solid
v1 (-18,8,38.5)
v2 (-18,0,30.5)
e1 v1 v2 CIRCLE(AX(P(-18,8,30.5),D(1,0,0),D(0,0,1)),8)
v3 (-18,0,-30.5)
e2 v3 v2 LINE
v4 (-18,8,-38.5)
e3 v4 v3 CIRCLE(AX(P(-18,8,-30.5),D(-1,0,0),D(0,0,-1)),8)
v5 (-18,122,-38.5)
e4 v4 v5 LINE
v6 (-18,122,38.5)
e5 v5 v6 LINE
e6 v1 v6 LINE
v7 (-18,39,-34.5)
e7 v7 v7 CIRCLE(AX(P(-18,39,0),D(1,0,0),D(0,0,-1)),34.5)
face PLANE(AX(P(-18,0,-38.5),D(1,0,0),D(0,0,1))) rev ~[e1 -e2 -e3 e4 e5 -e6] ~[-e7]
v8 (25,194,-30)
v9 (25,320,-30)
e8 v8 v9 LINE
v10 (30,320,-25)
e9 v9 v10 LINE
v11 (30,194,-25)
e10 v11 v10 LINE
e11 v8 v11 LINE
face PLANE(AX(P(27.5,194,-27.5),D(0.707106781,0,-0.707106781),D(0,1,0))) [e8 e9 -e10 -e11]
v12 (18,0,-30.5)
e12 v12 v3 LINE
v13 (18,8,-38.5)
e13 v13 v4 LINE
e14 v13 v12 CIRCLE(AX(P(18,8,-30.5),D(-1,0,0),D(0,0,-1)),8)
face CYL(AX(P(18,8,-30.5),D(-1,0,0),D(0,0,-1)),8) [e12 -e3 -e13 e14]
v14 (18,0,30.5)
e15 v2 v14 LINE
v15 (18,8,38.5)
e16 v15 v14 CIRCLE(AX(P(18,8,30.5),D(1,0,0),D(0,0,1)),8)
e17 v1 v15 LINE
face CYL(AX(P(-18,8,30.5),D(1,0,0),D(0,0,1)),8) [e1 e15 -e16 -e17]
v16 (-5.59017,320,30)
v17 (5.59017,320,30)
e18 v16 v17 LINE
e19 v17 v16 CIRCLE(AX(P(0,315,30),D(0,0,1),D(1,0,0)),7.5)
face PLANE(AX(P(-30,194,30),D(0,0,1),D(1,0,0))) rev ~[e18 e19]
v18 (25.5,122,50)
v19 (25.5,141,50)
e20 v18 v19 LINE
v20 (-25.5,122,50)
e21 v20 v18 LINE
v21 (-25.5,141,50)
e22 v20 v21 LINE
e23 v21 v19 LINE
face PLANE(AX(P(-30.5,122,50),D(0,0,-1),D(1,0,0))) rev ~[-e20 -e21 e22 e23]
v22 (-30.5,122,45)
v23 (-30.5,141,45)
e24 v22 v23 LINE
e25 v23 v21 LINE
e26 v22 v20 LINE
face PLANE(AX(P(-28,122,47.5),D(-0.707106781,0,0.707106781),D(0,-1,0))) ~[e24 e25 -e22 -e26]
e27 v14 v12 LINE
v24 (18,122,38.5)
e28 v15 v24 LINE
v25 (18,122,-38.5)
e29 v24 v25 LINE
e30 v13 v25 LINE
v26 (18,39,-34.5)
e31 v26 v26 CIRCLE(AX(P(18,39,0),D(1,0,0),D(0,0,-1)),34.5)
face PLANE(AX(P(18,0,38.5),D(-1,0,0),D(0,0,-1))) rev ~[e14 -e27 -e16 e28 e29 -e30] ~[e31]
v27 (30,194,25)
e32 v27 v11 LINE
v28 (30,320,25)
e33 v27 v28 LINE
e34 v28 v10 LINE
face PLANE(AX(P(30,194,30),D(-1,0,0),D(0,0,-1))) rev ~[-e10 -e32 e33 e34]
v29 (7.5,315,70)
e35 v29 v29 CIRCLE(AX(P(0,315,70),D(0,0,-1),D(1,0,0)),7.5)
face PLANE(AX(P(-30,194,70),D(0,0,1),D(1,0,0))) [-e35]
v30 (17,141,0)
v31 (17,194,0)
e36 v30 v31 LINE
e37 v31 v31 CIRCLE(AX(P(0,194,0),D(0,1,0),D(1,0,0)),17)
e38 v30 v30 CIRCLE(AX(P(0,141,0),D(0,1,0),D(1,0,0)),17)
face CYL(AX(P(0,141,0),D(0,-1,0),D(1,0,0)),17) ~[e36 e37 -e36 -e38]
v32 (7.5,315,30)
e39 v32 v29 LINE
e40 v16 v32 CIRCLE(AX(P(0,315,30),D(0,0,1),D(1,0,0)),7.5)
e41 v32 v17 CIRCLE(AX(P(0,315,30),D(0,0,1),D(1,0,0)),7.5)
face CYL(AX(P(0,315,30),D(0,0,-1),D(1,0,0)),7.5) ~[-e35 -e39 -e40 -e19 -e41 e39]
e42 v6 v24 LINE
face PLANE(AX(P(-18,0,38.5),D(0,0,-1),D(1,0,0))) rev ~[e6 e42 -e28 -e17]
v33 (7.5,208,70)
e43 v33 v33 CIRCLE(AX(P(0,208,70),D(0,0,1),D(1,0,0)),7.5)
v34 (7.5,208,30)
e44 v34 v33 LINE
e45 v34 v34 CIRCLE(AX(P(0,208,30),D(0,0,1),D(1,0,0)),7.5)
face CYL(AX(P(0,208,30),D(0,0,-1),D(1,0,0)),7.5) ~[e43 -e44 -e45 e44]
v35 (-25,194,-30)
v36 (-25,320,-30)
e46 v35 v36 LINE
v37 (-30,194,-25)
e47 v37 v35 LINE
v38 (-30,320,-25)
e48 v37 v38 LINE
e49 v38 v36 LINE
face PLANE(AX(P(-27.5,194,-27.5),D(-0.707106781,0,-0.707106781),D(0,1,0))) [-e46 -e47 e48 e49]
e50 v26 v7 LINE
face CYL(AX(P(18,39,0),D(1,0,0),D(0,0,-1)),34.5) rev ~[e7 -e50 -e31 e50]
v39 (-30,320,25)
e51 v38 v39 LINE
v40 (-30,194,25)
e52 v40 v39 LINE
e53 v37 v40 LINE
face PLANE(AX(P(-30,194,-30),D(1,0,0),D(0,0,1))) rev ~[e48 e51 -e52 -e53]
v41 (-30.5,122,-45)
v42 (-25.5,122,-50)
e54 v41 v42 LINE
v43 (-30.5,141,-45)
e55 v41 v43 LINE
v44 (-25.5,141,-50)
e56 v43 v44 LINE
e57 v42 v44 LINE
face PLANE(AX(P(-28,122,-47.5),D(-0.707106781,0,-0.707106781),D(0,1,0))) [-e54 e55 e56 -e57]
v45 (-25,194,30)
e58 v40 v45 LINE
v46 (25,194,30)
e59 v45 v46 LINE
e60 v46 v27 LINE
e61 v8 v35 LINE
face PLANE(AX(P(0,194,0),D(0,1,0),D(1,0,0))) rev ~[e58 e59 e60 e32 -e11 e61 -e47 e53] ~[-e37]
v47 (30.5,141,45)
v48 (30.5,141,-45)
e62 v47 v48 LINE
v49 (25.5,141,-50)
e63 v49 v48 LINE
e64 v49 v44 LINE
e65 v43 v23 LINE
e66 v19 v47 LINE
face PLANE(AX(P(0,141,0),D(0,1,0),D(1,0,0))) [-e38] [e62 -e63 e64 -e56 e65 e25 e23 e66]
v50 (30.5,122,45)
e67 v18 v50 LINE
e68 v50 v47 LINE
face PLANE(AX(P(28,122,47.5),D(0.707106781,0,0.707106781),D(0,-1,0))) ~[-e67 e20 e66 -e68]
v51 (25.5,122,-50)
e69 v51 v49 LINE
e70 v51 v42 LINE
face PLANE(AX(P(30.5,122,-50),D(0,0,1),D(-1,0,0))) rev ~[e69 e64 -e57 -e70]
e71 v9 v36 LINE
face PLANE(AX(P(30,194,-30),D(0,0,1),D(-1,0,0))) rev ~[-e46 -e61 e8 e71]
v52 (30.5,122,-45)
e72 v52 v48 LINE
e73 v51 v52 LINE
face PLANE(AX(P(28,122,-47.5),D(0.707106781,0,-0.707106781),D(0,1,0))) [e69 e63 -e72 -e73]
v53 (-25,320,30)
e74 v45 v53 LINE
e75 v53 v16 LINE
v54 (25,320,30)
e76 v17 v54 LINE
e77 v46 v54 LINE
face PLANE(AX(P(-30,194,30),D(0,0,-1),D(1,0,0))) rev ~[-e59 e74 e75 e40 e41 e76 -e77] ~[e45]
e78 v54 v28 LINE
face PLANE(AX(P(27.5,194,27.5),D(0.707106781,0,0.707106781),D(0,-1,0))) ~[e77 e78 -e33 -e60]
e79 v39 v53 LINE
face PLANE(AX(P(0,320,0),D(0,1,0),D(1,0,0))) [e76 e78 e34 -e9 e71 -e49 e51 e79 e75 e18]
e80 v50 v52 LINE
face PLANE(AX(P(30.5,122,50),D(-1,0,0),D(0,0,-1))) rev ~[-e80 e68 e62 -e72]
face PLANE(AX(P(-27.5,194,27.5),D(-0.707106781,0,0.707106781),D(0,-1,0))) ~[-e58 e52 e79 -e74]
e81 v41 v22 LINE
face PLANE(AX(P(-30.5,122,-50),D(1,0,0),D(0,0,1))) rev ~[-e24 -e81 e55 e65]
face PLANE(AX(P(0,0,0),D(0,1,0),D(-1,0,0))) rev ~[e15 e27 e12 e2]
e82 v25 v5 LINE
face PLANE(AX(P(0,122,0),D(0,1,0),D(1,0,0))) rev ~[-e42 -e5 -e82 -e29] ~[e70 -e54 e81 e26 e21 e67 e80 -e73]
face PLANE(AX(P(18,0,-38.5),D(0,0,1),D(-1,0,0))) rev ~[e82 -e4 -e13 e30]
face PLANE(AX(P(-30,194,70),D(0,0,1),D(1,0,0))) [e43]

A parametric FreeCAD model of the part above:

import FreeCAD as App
import Part
import Sketcher
Q = App.Units.Quantity


def edges_at(feature, points):
    """Names of the edges that pass closest to the given points."""
    edges = feature.Shape.Edges
    near = lambda p: min(range(len(edges)), key=lambda i: edges[i].distToShape(Part.Vertex(*p))[0])
    return sorted({f"Edge{near(p) + 1}" for p in points})


def add_polygon(sketch, points):
    """Adds a closed chain of lines whose ends are joined by coincident constraints."""
    first, n = sketch.GeometryCount, len(points)
    for a, b in zip(points, points[1:] + points[:1]):
        sketch.addGeometry(Part.LineSegment(App.Vector(*a, 0), App.Vector(*b, 0)), False)
    for i in range(n):
        sketch.addConstraint(Sketcher.Constraint("Coincident", first + i, 2, first + (i + 1) % n, 1))

doc = App.newDocument("Part")
body = doc.addObject("PartDesign::Body", "Body")

# Sketch on XZ plane
sketch1 = body.newObject("Sketcher::SketchObject", "Sketch")
sketch1.AttachmentSupport = (doc.getObject("XZ_Plane"), [""])
sketch1.MapMode = "FlatFace"
add_polygon(sketch1, [(-18, -38), (-18, 38), (18, 38), (18, -38)])  # lines 0-3
sketch1.addConstraint(Sketcher.Constraint("Vertical", 0))
sketch1.addConstraint(Sketcher.Constraint("Horizontal", 1))
sketch1.addConstraint(Sketcher.Constraint("Vertical", 2))
sketch1.addConstraint(Sketcher.Constraint("Horizontal", 3))
sketch1.addConstraint(Sketcher.Constraint("Symmetric", 0, 2, 2, 2, -1, 1))
sketch1.addConstraint(Sketcher.Constraint("DistanceX", 1, 1, 1, 2, Q("36 mm")))
sketch1.addConstraint(Sketcher.Constraint("DistanceY", 0, 1, 0, 2, Q("77 mm")))
pad1 = body.newObject("PartDesign::Pad", "Pad")
pad1.Profile = sketch1
pad1.Length = 122
pad1.Reversed = True

# Sketch on XZ plane
sketch2 = body.newObject("Sketcher::SketchObject", "Sketch001")
sketch2.AttachmentSupport = (doc.getObject("XZ_Plane"), [""])
sketch2.MapMode = "FlatFace"
sketch2.AttachmentOffset = App.Placement(App.Vector(0, 0, -122), App.Rotation())
add_polygon(sketch2, [(-30, -50), (-30, 50), (30, 50), (30, -50)])  # lines 0-3
sketch2.addConstraint(Sketcher.Constraint("Vertical", 0))
sketch2.addConstraint(Sketcher.Constraint("Horizontal", 1))
sketch2.addConstraint(Sketcher.Constraint("Vertical", 2))
sketch2.addConstraint(Sketcher.Constraint("Horizontal", 3))
sketch2.addConstraint(Sketcher.Constraint("Symmetric", 0, 2, 2, 2, -1, 1))
sketch2.addConstraint(Sketcher.Constraint("DistanceX", 1, 1, 1, 2, Q("61 mm")))
sketch2.addConstraint(Sketcher.Constraint("DistanceY", 0, 1, 0, 2, Q("100 mm")))
pad2 = body.newObject("PartDesign::Pad", "Pad001")
pad2.Profile = sketch2
pad2.Length = 19
pad2.Reversed = True

# Sketch on XZ plane
sketch3 = body.newObject("Sketcher::SketchObject", "Sketch002")
sketch3.AttachmentSupport = (doc.getObject("XZ_Plane"), [""])
sketch3.MapMode = "FlatFace"
sketch3.AttachmentOffset = App.Placement(App.Vector(0, 0, -141), App.Rotation())
sketch3.addGeometry(Part.Circle(App.Vector(0, 0, 0), App.Vector(0, 0, 1), 17), False)
sketch3.addConstraint(Sketcher.Constraint("Coincident", 0, 3, -1, 1))
sketch3.addConstraint(Sketcher.Constraint("Diameter", 0, Q("34 mm")))
pad3 = body.newObject("PartDesign::Pad", "Pad002")
pad3.Profile = sketch3
pad3.Length = 53
pad3.Reversed = True

# Sketch on XZ plane
sketch4 = body.newObject("Sketcher::SketchObject", "Sketch003")
sketch4.AttachmentSupport = (doc.getObject("XZ_Plane"), [""])
sketch4.MapMode = "FlatFace"
sketch4.AttachmentOffset = App.Placement(App.Vector(0, 0, -194), App.Rotation())
add_polygon(sketch4, [(-30, -30), (-30, 30), (30, 30), (30, -30)])  # lines 0-3
sketch4.addConstraint(Sketcher.Constraint("Vertical", 0))
sketch4.addConstraint(Sketcher.Constraint("Horizontal", 1))
sketch4.addConstraint(Sketcher.Constraint("Vertical", 2))
sketch4.addConstraint(Sketcher.Constraint("Horizontal", 3))
sketch4.addConstraint(Sketcher.Constraint("Symmetric", 0, 2, 2, 2, -1, 1))
sketch4.addConstraint(Sketcher.Constraint("Equal", 3, 0))
sketch4.addConstraint(Sketcher.Constraint("DistanceX", 1, 1, 1, 2, Q("60 mm")))
pad4 = body.newObject("PartDesign::Pad", "Pad003")
pad4.Profile = sketch4
pad4.Length = 126
pad4.Reversed = True

# Sketch on XY plane
sketch5 = body.newObject("Sketcher::SketchObject", "Sketch004")
sketch5.AttachmentSupport = (doc.getObject("XY_Plane"), [""])
sketch5.MapMode = "FlatFace"
sketch5.AttachmentOffset = App.Placement(App.Vector(0, 0, 30), App.Rotation())
sketch5.addGeometry(Part.Circle(App.Vector(0, 208, 0), App.Vector(0, 0, 1), 8), False)
sketch5.addGeometry(Part.Circle(App.Vector(0, 315, 0), App.Vector(0, 0, 1), 8), False)
sketch5.addConstraint(Sketcher.Constraint("Equal", 0, 1))
sketch5.addConstraint(Sketcher.Constraint("PointOnObject", 0, 3, -2))
sketch5.addConstraint(Sketcher.Constraint("PointOnObject", 1, 3, -2))
sketch5.addConstraint(Sketcher.Constraint("Diameter", 0, Q("15 mm")))
sketch5.addConstraint(Sketcher.Constraint("DistanceY", -1, 1, 0, 3, Q("208 mm")))
sketch5.addConstraint(Sketcher.Constraint("DistanceY", -1, 1, 1, 3, Q("315 mm")))
pad5 = body.newObject("PartDesign::Pad", "Pad004")
pad5.Profile = sketch5
pad5.Length = 40
doc.recompute()

chamfer = body.newObject("PartDesign::Chamfer", "Chamfer")
chamfer.Base = (pad5, edges_at(pad5, [
    (30, 257, 30),
    (30, 257, -30),
    (-30, 257, -30),
    (-30, 257, 30),
]))
chamfer.Size = 5
doc.recompute()

chamfer2 = body.newObject("PartDesign::Chamfer", "Chamfer001")
chamfer2.Base = (chamfer, edges_at(chamfer, [
    (30.5, 131.5, -50),
    (-30.5, 131.5, -50),
    (-30.5, 131.5, 50),
    (30.5, 131.5, 50),
]))
chamfer2.Size = 5
doc.recompute()

fillet = body.newObject("PartDesign::Fillet", "Fillet")
fillet.Base = (chamfer2, edges_at(chamfer2, [(0, 0, 38.5), (0, 0, -38.5)]))
fillet.Radius = 8

# Sketch on YZ plane
sketch6 = body.newObject("Sketcher::SketchObject", "Sketch005")
sketch6.AttachmentSupport = (doc.getObject("YZ_Plane"), [""])
sketch6.MapMode = "FlatFace"
sketch6.AttachmentOffset = App.Placement(App.Vector(0, 0, 18), App.Rotation())
sketch6.addGeometry(Part.Circle(App.Vector(39, 0, 0), App.Vector(0, 0, 1), 34), False)
sketch6.addConstraint(Sketcher.Constraint("PointOnObject", 0, 3, -1))
sketch6.addConstraint(Sketcher.Constraint("Diameter", 0, Q("69 mm")))
sketch6.addConstraint(Sketcher.Constraint("DistanceX", -1, 1, 0, 3, Q("39 mm")))
pocket1 = body.newObject("PartDesign::Pocket", "Pocket")
pocket1.Profile = sketch6
pocket1.Type = "ThroughAll"

doc.recompute()
